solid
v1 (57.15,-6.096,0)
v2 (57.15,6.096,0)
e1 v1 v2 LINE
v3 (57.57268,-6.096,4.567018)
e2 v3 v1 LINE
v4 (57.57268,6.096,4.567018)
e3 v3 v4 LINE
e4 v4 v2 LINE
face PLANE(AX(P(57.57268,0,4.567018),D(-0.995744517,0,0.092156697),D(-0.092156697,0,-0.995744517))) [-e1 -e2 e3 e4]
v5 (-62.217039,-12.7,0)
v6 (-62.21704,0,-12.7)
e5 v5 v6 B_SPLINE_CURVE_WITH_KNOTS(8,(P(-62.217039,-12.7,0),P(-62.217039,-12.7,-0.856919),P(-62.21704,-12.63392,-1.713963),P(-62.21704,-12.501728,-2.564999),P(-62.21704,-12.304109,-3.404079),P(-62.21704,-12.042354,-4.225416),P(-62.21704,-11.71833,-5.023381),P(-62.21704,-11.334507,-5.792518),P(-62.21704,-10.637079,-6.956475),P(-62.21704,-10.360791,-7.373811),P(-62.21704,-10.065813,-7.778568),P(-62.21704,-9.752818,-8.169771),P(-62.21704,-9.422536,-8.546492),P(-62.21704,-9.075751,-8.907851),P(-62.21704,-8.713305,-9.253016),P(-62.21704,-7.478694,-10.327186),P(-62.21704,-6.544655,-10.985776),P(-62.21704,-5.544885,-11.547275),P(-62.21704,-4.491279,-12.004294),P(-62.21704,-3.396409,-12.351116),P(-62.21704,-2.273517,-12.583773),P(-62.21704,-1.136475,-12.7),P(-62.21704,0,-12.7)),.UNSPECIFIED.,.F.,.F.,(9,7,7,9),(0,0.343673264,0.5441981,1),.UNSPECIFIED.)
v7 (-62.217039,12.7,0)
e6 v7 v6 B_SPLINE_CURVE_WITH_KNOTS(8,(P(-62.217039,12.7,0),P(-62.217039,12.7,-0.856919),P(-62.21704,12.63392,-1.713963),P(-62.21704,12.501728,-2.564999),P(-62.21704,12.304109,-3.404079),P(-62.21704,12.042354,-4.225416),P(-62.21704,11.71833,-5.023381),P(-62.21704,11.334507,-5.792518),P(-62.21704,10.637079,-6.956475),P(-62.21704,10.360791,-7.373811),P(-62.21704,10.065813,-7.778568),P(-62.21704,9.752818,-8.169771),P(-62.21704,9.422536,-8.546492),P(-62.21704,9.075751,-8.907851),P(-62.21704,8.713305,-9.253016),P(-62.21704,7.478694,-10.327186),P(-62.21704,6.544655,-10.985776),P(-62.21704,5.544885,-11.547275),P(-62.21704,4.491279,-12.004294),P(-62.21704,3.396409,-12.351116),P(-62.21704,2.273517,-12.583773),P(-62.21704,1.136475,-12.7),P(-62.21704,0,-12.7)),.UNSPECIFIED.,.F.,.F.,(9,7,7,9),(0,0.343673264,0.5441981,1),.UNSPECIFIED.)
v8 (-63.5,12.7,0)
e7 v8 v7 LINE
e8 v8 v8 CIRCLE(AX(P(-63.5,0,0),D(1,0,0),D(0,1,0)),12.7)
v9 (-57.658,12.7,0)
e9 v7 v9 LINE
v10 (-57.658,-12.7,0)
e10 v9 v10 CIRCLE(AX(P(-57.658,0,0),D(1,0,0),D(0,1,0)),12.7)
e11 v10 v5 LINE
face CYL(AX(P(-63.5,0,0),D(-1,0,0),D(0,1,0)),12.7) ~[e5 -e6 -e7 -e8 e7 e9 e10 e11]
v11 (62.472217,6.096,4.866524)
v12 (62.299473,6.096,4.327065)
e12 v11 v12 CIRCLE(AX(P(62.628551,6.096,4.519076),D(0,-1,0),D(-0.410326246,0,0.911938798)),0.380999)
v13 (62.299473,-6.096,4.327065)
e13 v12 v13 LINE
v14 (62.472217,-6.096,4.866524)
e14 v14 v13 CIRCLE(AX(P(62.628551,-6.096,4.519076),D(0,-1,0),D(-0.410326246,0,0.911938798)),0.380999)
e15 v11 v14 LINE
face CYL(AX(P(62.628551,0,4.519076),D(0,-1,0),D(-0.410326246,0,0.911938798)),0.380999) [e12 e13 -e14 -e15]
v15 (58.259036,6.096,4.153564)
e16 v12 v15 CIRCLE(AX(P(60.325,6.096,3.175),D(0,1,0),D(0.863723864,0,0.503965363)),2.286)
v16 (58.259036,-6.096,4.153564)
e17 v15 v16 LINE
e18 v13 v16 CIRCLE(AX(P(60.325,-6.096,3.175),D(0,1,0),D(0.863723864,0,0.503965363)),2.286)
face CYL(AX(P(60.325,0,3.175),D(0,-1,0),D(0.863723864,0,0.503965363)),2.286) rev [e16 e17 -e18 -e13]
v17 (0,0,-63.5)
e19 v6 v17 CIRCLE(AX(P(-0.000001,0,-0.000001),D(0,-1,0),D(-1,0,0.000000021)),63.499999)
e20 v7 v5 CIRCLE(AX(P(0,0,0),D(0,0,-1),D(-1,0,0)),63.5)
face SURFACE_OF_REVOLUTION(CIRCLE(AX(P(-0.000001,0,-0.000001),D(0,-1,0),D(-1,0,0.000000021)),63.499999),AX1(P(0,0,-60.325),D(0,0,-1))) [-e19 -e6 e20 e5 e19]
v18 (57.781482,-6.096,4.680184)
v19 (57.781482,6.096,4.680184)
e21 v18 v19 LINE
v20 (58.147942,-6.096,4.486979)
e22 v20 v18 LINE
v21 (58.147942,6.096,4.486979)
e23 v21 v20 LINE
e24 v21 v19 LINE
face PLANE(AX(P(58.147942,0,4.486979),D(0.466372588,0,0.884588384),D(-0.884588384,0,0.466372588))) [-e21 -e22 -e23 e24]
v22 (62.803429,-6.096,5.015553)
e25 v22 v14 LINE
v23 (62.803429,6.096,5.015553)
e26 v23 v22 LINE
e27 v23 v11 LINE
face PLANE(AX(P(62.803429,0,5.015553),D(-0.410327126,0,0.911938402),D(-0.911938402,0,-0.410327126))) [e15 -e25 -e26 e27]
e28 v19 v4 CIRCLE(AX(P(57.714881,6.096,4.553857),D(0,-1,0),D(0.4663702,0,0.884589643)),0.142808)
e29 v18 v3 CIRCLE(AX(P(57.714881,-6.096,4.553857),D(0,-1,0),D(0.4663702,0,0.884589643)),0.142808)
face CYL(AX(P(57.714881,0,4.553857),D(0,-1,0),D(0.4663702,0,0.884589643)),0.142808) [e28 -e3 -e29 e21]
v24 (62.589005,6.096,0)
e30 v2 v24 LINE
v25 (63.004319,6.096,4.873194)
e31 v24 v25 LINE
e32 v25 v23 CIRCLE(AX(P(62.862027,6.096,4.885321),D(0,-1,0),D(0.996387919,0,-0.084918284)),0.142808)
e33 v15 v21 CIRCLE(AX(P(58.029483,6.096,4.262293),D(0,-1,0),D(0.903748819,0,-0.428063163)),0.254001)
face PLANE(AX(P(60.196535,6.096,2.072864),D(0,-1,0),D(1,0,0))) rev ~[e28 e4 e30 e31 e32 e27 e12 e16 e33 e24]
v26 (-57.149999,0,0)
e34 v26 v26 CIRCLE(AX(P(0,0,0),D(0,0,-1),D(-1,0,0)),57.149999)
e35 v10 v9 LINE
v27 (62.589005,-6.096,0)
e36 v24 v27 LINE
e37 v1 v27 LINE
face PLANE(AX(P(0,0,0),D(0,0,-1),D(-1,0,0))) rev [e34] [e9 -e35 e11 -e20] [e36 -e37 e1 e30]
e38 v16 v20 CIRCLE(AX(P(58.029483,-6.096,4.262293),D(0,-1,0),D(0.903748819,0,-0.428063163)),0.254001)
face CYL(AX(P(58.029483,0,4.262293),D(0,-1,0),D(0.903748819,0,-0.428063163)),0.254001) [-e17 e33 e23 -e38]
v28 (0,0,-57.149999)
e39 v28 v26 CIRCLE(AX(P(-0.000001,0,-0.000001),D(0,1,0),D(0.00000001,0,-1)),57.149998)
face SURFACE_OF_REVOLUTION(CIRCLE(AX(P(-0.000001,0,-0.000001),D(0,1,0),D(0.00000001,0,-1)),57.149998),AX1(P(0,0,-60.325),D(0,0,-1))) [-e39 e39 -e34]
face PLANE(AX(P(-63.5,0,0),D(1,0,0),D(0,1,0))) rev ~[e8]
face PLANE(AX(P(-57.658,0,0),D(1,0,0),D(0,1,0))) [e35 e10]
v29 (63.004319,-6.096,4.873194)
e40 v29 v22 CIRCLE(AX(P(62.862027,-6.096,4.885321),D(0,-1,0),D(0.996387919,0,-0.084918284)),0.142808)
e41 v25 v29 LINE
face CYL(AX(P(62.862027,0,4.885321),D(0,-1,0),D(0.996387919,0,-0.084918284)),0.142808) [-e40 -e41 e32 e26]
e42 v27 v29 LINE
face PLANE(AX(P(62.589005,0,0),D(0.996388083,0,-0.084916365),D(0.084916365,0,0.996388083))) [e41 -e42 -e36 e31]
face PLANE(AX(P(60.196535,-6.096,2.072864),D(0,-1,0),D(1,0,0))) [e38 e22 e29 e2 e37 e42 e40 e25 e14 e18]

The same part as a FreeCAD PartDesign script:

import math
import FreeCAD as App
import Part
import Sketcher
Q = App.Units.Quantity

doc = App.newDocument("Part")
body = doc.addObject("PartDesign::Body", "Body")

# Sketch on XZ plane
sketch1 = body.newObject("Sketcher::SketchObject", "Sketch")
sketch1.AttachmentSupport = (doc.getObject("XZ_Plane"), [""])
sketch1.MapMode = "FlatFace"
sketch1.addGeometry(Part.LineSegment(App.Vector(-57, 0, 0), App.Vector(-64, 0, 0)), False)
sketch1.addGeometry(Part.ArcOfCircle(Part.Circle(App.Vector(0, 0, 0), App.Vector(0, 0, 1), 63), math.radians(180), math.radians(270)), False)
sketch1.addGeometry(Part.LineSegment(App.Vector(0, -64, 0), App.Vector(0, -57, 0)), False)
sketch1.addGeometry(Part.ArcOfCircle(Part.Circle(App.Vector(0, 0, 0), App.Vector(0, 0, 1), 57), math.radians(180), math.radians(270)), False)
sketch1.addConstraint(Sketcher.Constraint("Coincident", 0, 2, 1, 1))
sketch1.addConstraint(Sketcher.Constraint("Coincident", 1, 2, 2, 1))
sketch1.addConstraint(Sketcher.Constraint("Coincident", 2, 2, 3, 2))
sketch1.addConstraint(Sketcher.Constraint("Coincident", 3, 1, 0, 1))
sketch1.addConstraint(Sketcher.Constraint("Horizontal", 0))
sketch1.addConstraint(Sketcher.Constraint("Vertical", 2))
sketch1.addConstraint(Sketcher.Constraint("Coincident", 1, 3, -1, 1))
sketch1.addConstraint(Sketcher.Constraint("Coincident", 3, 3, -1, 1))
sketch1.addConstraint(Sketcher.Constraint("PointOnObject", 0, 2, -1))
sketch1.addConstraint(Sketcher.Constraint("PointOnObject", 1, 2, -2))
sketch1.addConstraint(Sketcher.Constraint("Radius", 1, Q("2.4999999 in")))
sketch1.addConstraint(Sketcher.Constraint("Radius", 3, Q("2.2499999 in")))
revolution = body.newObject("PartDesign::Revolution", "Revolution")
revolution.Profile = sketch1
revolution.ReferenceAxis = (sketch1, ["V_Axis"])
revolution.Angle = 360

# Sketch on XZ plane
sketch2 = body.newObject("Sketcher::SketchObject", "Sketch001")
sketch2.AttachmentSupport = (doc.getObject("XZ_Plane"), [""])
sketch2.MapMode = "FlatFace"
sketch2.addGeometry(Part.LineSegment(App.Vector(57.15, 0, 0), App.Vector(62.59, 0, 0)), False)
sketch2.addGeometry(Part.LineSegment(App.Vector(62.59, 0, 0), App.Vector(63, 4.87, 0)), False)
sketch2.addGeometry(Part.ArcOfCircle(Part.Circle(App.Vector(62.86, 4.89, 0), App.Vector(0, 0, 1), 0.14), math.radians(-5), math.radians(114)), False)
sketch2.addGeometry(Part.LineSegment(App.Vector(62.8, 5.02, 0), App.Vector(62.47, 4.87, 0)), False)
sketch2.addGeometry(Part.ArcOfCircle(Part.Circle(App.Vector(62.63, 4.52, 0), App.Vector(0, 0, 1), 0.38), math.radians(114), math.radians(210)), False)
sketch2.addGeometry(Part.ArcOfCircle(Part.Circle(App.Vector(60.33, 3.18, 0), App.Vector(0, 0, 1), 2.29), math.radians(155), math.radians(390)), False)
sketch2.addGeometry(Part.ArcOfCircle(Part.Circle(App.Vector(58.03, 4.26, 0), App.Vector(0, 0, 1), 0.25), math.radians(-25), math.radians(62)), False)
sketch2.addGeometry(Part.LineSegment(App.Vector(58.15, 4.49, 0), App.Vector(57.78, 4.68, 0)), False)
sketch2.addGeometry(Part.ArcOfCircle(Part.Circle(App.Vector(57.71, 4.55, 0), App.Vector(0, 0, 1), 0.14), math.radians(62), math.radians(175)), False)
sketch2.addGeometry(Part.LineSegment(App.Vector(57.57, 4.57, 0), App.Vector(57.15, 0, 0)), False)
sketch2.addConstraint(Sketcher.Constraint("Coincident", 0, 2, 1, 1))
sketch2.addConstraint(Sketcher.Constraint("Tangent", 1, 2, 2, 1))
sketch2.addConstraint(Sketcher.Constraint("Tangent", 2, 2, 3, 1))
sketch2.addConstraint(Sketcher.Constraint("Tangent", 3, 2, 4, 1))
sketch2.addConstraint(Sketcher.Constraint("Tangent", 4, 2, 5, 2))
sketch2.addConstraint(Sketcher.Constraint("Coincident", 5, 1, 6, 1))
sketch2.addConstraint(Sketcher.Constraint("Tangent", 6, 2, 7, 1))
sketch2.addConstraint(Sketcher.Constraint("Coincident", 7, 2, 8, 1))
sketch2.addConstraint(Sketcher.Constraint("Tangent", 8, 2, 9, 1))
sketch2.addConstraint(Sketcher.Constraint("Coincident", 9, 2, 0, 1))
sketch2.addConstraint(Sketcher.Constraint("Horizontal", 0))
sketch2.addConstraint(Sketcher.Constraint("Equal", 2, 8))
sketch2.addConstraint(Sketcher.Constraint("PointOnObject", 0, 2, -1))
sketch2.addConstraint(Sketcher.Constraint("Radius", 5, Q("0.09 in")))
sketch2.addConstraint(Sketcher.Constraint("Radius", 6, Q("0.01 in")))
sketch2.addConstraint(Sketcher.Constraint("Radius", 4, Q("0.015 in")))
sketch2.addConstraint(Sketcher.Constraint("DistanceX", -1, 1, 9, 2, Q("2.25 in")))
sketch2.addConstraint(Sketcher.Constraint("DistanceX", -1, 1, 5, 3, Q("2.375 in")))
sketch2.addConstraint(Sketcher.Constraint("DistanceY", -1, 1, 5, 3, Q("0.125 in")))
sketch2.addConstraint(Sketcher.Constraint("Radius", 8, Q("0.142808 mm")))
sketch2.addConstraint(Sketcher.Constraint("DistanceY", 6, 3, 1, 2, Q("0.610901 mm")))
sketch2.addConstraint(Sketcher.Constraint("DistanceY", 5, 1, 4, 2, Q("0.173501 mm")))
sketch2.addConstraint(Sketcher.Constraint("DistanceX", 8, 3, 7, 2, Q("0.066601 mm")))
sketch2.addConstraint(Sketcher.Constraint("DistanceX", 7, 2, 6, 3, Q("0.248001 mm")))
sketch2.addConstraint(Sketcher.Constraint("Distance", 1, Q("4.890859 mm")))
sketch2.addConstraint(Sketcher.Constraint("Distance", 7, Q("0.414272 mm")))
sketch2.addConstraint(Sketcher.Constraint("DistanceX", 0, 1, 0, 2, Q("5.439005 mm")))
sketch2.addConstraint(Sketcher.Constraint("DistanceY", -1, 1, 2, 3, Q("4.885321 mm")))
sketch2.addConstraint(Sketcher.Constraint("DistanceX", -1, 1, 4, 3, Q("62.628551 mm")))
pad1 = body.newObject("PartDesign::Pad", "Pad")
pad1.Profile = sketch2
pad1.Length = Q("0.48 in")
pad1.Midplane = True

# Sketch on YZ plane
sketch3 = body.newObject("Sketcher::SketchObject", "Sketch002")
sketch3.AttachmentSupport = (doc.getObject("YZ_Plane"), [""])
sketch3.MapMode = "FlatFace"
sketch3.AttachmentOffset = App.Placement(App.Vector(0, 0, -2.5 * 25.4), App.Rotation())
sketch3.addGeometry(Part.Circle(App.Vector(0, 0, 0), App.Vector(0, 0, 1), 13), False)
sketch3.addConstraint(Sketcher.Constraint("Coincident", 0, 3, -1, 1))
sketch3.addConstraint(Sketcher.Constraint("Diameter", 0, Q("1 in")))
pad2 = body.newObject("PartDesign::Pad", "Pad001")
pad2.Profile = sketch3
pad2.Length = Q("0.23 in")

doc.recompute()
